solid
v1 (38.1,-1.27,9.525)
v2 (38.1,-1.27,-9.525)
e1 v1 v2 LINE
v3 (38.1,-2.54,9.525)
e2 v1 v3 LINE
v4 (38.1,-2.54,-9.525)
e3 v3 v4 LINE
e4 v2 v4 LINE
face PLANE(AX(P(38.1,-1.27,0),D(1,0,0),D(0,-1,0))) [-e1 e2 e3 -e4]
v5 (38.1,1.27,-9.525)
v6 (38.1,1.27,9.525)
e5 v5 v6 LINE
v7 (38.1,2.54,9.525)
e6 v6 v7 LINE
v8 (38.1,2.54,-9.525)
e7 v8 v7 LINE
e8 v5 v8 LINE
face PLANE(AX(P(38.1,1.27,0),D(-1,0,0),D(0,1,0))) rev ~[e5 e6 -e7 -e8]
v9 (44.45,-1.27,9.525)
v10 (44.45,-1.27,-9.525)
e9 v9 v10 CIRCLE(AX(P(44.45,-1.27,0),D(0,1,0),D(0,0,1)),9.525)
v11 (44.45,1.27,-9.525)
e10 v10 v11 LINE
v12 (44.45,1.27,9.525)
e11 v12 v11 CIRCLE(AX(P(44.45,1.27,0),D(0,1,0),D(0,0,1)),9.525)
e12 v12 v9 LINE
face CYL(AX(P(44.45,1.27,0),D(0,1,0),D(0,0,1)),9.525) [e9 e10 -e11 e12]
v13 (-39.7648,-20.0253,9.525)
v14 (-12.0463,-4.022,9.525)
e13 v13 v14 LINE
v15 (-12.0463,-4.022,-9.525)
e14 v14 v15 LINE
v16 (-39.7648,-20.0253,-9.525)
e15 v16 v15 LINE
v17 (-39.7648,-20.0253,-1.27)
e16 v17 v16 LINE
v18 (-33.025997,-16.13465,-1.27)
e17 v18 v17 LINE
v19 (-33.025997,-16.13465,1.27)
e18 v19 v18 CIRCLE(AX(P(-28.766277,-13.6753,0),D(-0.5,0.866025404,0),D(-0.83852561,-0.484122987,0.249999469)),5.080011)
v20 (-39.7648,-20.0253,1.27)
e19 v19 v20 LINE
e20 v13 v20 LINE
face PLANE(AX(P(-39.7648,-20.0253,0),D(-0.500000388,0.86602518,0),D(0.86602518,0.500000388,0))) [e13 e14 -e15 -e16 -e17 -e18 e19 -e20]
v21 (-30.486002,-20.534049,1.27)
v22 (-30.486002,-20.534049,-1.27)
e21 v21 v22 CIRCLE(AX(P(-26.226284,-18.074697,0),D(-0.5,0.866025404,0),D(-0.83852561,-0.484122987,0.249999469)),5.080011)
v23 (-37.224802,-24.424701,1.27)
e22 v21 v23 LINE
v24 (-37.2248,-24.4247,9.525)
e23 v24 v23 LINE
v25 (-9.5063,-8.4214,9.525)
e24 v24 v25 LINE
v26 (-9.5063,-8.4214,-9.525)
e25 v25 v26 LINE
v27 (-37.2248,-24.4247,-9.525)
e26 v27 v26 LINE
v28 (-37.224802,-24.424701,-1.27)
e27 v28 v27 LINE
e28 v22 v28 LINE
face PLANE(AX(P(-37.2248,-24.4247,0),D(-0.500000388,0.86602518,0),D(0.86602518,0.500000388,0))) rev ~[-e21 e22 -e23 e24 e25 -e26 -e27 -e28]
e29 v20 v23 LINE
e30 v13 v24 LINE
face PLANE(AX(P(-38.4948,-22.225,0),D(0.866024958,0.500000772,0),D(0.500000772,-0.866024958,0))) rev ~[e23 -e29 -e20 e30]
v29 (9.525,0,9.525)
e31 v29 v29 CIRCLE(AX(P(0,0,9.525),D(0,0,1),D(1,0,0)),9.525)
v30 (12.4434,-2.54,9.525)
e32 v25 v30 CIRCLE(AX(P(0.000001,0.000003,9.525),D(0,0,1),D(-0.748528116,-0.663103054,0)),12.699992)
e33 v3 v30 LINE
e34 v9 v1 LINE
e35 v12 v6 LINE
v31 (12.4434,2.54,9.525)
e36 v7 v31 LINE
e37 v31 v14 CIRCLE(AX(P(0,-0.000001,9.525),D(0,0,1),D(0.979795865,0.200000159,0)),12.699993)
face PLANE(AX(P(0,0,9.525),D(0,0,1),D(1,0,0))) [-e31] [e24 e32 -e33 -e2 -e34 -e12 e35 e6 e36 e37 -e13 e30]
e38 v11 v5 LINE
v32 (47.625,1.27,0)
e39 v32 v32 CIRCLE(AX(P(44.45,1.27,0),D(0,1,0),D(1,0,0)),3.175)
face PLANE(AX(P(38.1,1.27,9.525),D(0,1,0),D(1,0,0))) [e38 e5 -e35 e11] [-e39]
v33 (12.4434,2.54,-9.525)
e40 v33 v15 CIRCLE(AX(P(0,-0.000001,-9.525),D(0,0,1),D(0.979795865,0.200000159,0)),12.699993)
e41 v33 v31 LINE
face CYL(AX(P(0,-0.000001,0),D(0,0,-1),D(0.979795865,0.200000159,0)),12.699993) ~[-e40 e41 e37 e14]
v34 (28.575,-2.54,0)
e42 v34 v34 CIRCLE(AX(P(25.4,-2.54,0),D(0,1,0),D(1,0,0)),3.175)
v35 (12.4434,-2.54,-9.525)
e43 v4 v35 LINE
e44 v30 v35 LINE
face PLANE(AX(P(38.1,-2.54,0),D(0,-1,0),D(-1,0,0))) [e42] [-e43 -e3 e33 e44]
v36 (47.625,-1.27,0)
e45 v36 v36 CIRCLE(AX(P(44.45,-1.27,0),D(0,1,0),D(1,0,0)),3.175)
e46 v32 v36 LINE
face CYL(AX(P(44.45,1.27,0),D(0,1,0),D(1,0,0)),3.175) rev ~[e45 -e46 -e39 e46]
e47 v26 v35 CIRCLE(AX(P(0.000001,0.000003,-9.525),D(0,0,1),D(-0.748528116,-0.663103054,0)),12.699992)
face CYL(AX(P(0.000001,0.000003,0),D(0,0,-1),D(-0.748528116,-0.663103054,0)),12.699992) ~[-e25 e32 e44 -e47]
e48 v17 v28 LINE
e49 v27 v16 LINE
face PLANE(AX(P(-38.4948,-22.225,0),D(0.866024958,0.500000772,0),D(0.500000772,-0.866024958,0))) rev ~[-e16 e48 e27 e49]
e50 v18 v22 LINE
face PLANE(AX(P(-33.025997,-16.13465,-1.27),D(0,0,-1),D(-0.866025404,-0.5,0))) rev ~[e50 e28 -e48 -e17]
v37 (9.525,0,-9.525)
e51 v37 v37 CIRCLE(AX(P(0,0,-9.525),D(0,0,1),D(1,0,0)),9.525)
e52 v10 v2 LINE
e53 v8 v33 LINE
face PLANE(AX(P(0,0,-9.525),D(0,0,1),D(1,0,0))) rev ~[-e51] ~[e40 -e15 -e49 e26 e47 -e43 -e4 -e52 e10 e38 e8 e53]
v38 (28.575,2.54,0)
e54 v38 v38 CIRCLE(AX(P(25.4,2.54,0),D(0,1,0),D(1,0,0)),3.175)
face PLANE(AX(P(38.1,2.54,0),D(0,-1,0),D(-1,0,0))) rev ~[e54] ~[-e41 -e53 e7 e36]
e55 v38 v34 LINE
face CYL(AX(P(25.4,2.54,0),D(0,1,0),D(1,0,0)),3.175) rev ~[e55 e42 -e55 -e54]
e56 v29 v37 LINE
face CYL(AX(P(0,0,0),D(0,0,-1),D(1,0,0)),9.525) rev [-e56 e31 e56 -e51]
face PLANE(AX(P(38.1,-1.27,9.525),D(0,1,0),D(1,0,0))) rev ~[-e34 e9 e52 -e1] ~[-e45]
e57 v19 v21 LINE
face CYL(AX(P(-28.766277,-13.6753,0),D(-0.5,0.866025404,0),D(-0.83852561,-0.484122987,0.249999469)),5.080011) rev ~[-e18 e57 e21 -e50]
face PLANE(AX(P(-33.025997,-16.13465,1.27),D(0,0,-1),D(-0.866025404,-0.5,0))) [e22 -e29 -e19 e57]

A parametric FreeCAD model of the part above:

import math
import FreeCAD as App
import Part
import Sketcher
from FreeCAD import Vector
Q = App.Units.Quantity

doc = App.newDocument("Part")
body = doc.addObject("PartDesign::Body", "Body")

# Sketch on XY plane
sketch1 = doc.addObject("Sketcher::SketchObject", "Sketch")
body.addObject(sketch1)
sketch1.AttachmentSupport = (doc.XY_Plane, [""])
sketch1.MapMode = "FlatFace"
sketch1.addGeometry([
    Part.LineSegment(Vector(44.5, 1.3, 0), Vector(38.1, 1.3, 0)),  # 0
    Part.LineSegment(Vector(38.1, 1.3, 0), Vector(38.1, 2.5, 0)),  # 1
    Part.LineSegment(Vector(38.1, 2.5, 0), Vector(12.4, 2.5, 0)),  # 2
    Part.ArcOfCircle(Part.Circle(Vector(0, 0, 0), Vector(0, 0, 1), 12.7), math.radians(12), math.radians(198)),  # 3
    Part.LineSegment(Vector(-12, -4, 0), Vector(-39.8, -20, 0)),  # 4
    Part.LineSegment(Vector(-39.8, -20, 0), Vector(-37.2, -24.4, 0)),  # 5
    Part.LineSegment(Vector(-37.2, -24.4, 0), Vector(-9.5, -8.4, 0)),  # 6
    Part.ArcOfCircle(Part.Circle(Vector(0, 0, 0), Vector(0, 0, 1), 12.7), math.radians(-138), math.radians(-12)),  # 7
    Part.LineSegment(Vector(12.4, -2.5, 0), Vector(38.1, -2.5, 0)),  # 8
    Part.LineSegment(Vector(38.1, -2.5, 0), Vector(38.1, -1.3, 0)),  # 9
    Part.LineSegment(Vector(38.1, -1.3, 0), Vector(44.5, -1.3, 0)),  # 10
    Part.LineSegment(Vector(44.5, -1.3, 0), Vector(44.5, 1.3, 0)),  # 11
    Part.Circle(Vector(0, 0, 0), Vector(0, 0, 1), 9.5),  # 12
], False)
sketch1.addConstraint([
    Sketcher.Constraint("Coincident", 0, 2, 1, 1),
    Sketcher.Constraint("Coincident", 1, 2, 2, 1),
    Sketcher.Constraint("Coincident", 2, 2, 3, 1),
    Sketcher.Constraint("Coincident", 3, 2, 4, 1),
    Sketcher.Constraint("Coincident", 4, 2, 5, 1),
    Sketcher.Constraint("Coincident", 5, 2, 6, 1),
    Sketcher.Constraint("Coincident", 6, 2, 7, 1),
    Sketcher.Constraint("Coincident", 7, 2, 8, 1),
    Sketcher.Constraint("Coincident", 8, 2, 9, 1),
    Sketcher.Constraint("Coincident", 9, 2, 10, 1),
    Sketcher.Constraint("Coincident", 10, 2, 11, 1),
    Sketcher.Constraint("Coincident", 11, 2, 0, 1),
    Sketcher.Constraint("Horizontal", 0),
    Sketcher.Constraint("Vertical", 1),
    Sketcher.Constraint("Horizontal", 2),
    Sketcher.Constraint("Horizontal", 8),
    Sketcher.Constraint("Vertical", 9),
    Sketcher.Constraint("Horizontal", 10),
    Sketcher.Constraint("Vertical", 11),
    Sketcher.Constraint("Coincident", 3, 3, -1, 1),
    Sketcher.Constraint("Coincident", 7, 3, -1, 1),
    Sketcher.Constraint("Coincident", 12, 3, -1, 1),
    Sketcher.Constraint("Equal", 3, 7),
    Sketcher.Constraint("Symmetric", 1, 2, 8, 2, -1),
    Sketcher.Constraint("Perpendicular", 4, 5),
    Sketcher.Constraint("Perpendicular", 5, 6),
    Sketcher.Constraint("Equal", 1, 9),
    Sketcher.Constraint("Equal", 4, 6),
    Sketcher.Constraint("Radius", 3, Q("0.5 in")),
    Sketcher.Constraint("Diameter", 12, Q("0.75 in")),
    Sketcher.Constraint("DistanceY", 11, 1, 11, 2, Q("0.1 in")),
    Sketcher.Constraint("DistanceX", 0, 2, 0, 1, Q("0.25 in")),
    Sketcher.Constraint("DistanceY", 1, 1, 1, 2, Q("0.05 in")),
    Sketcher.Constraint("DistanceX", -1, 1, 0, 2, Q("1.5 in")),
    Sketcher.Constraint("DistanceX", 4, 2, 5, 2, Q("0.1 in")),
    Sketcher.Constraint("Angle", 4, Q("-150 deg")),
    Sketcher.Constraint("Distance", 4, Q("1.2601 in")),
])
pad1 = doc.addObject("PartDesign::Pad", "Pad")
body.addObject(pad1)
pad1.Profile = sketch1
pad1.Length = Q("0.75 in")
pad1.Midplane = True

# Sketch on XZ plane
sketch2 = doc.addObject("Sketcher::SketchObject", "Sketch001")
body.addObject(sketch2)
sketch2.AttachmentSupport = (doc.XZ_Plane, [""])
sketch2.MapMode = "FlatFace"
sketch2.AttachmentOffset = App.Placement(Vector(0, 0, -0.05 * 25.4), App.Rotation())
sketch2.addGeometry([
    Part.LineSegment(Vector(44, -10, 0), Vector(44, 10, 0)),
    Part.ArcOfCircle(Part.Circle(Vector(44, 0, 0), Vector(0, 0, 1), 10), math.radians(-90), math.radians(90)),
], False)
sketch2.addConstraint([
    Sketcher.Constraint("Coincident", 0, 1, 1, 1),
    Sketcher.Constraint("Coincident", 1, 2, 0, 2),
    Sketcher.Constraint("Vertical", 0),
    Sketcher.Constraint("PointOnObject", 1, 3, -1),
    Sketcher.Constraint("Vertical", 1, 3, 0, 1),
    Sketcher.Constraint("Radius", 1, Q("0.375 in")),
    Sketcher.Constraint("DistanceX", -1, 1, 1, 3, Q("1.75 in")),
])
pad2 = doc.addObject("PartDesign::Pad", "Pad001")
body.addObject(pad2)
pad2.Profile = sketch2
pad2.Length = Q("0.1 in")

# Sketch on XZ plane
sketch3 = doc.addObject("Sketcher::SketchObject", "Sketch002")
body.addObject(sketch3)
sketch3.AttachmentSupport = (doc.XZ_Plane, [""])
sketch3.MapMode = "FlatFace"
sketch3.AttachmentOffset = App.Placement(Vector(0, 0, -0.05 * 25.4), App.Rotation())
sketch3.addGeometry(Part.Circle(Vector(44.5, 0, 0), Vector(0, 0, 1), 3.2), False)
sketch3.addConstraint([
    Sketcher.Constraint("PointOnObject", 0, 3, -1),
    Sketcher.Constraint("Diameter", 0, Q("0.25 in")),
    Sketcher.Constraint("DistanceX", -1, 1, 0, 3, Q("1.75 in")),
])
pocket1 = doc.addObject("PartDesign::Pocket", "Pocket")
body.addObject(pocket1)
pocket1.Profile = sketch3
pocket1.Type = "ThroughAll"
pocket1.Reversed = True

# Sketch on XZ plane
sketch4 = doc.addObject("Sketcher::SketchObject", "Sketch003")
body.addObject(sketch4)
sketch4.AttachmentSupport = (doc.XZ_Plane, [""])
sketch4.MapMode = "FlatFace"
sketch4.AttachmentOffset = App.Placement(Vector(0, 0, -0.1 * 25.4), App.Rotation())
sketch4.addGeometry(Part.Circle(Vector(25.4, 0, 0), Vector(0, 0, 1), 3.2), False)
sketch4.addConstraint([
    Sketcher.Constraint("PointOnObject", 0, 3, -1),
    Sketcher.Constraint("Diameter", 0, Q("0.25 in")),
    Sketcher.Constraint("DistanceX", -1, 1, 0, 3, Q("1 in")),
])
pocket2 = doc.addObject("PartDesign::Pocket", "Pocket001")
body.addObject(pocket2)
pocket2.Profile = sketch4
pocket2.Type = "ThroughAll"
pocket2.Reversed = True

# Sketch on an angled plane
sketch5 = doc.addObject("Sketcher::SketchObject", "Sketch004")
body.addObject(sketch5)
sketch5.Placement = App.Placement(Vector(-39.7648, -20.0253, 9.525), App.Rotation(Vector(0.866025404, 0.5, 0), Vector(0, 0, -1), Vector(-0.5, 0.866025404, 0), "ZXY"))
sketch5.addGeometry([
    Part.LineSegment(Vector(0, 8.3, 0), Vector(7.8, 8.3, 0)),
    Part.ArcOfCircle(Part.Circle(Vector(12.7, 9.5, 0), Vector(0, 0, 1), 5.1), math.radians(-166), math.radians(166)),
    Part.LineSegment(Vector(7.8, 10.8, 0), Vector(0, 10.8, 0)),
    Part.LineSegment(Vector(0, 10.8, 0), Vector(0, 8.3, 0)),
], False)
sketch5.addConstraint([
    Sketcher.Constraint("Coincident", 0, 2, 1, 1),
    Sketcher.Constraint("Coincident", 1, 2, 2, 1),
    Sketcher.Constraint("Coincident", 2, 2, 3, 1),
    Sketcher.Constraint("Coincident", 3, 2, 0, 1),
    Sketcher.Constraint("Horizontal", 0),
    Sketcher.Constraint("Horizontal", 2),
    Sketcher.Constraint("Vertical", 3),
    Sketcher.Constraint("PointOnObject", 2, 2, -2),
    Sketcher.Constraint("Vertical", 0, 2, 1, 2),
    Sketcher.Constraint("Radius", 1, Q("0.2 in")),
    Sketcher.Constraint("DistanceX", -1, 1, 1, 3, Q("0.5 in")),
    Sketcher.Constraint("DistanceY", 3, 2, 3, 1, Q("0.1 in")),
    Sketcher.Constraint("DistanceY", -1, 1, 1, 3, Q("0.375 in")),
])
pocket3 = doc.addObject("PartDesign::Pocket", "Pocket002")
body.addObject(pocket3)
pocket3.Profile = sketch5
pocket3.Type = "ThroughAll"

doc.recompute()
